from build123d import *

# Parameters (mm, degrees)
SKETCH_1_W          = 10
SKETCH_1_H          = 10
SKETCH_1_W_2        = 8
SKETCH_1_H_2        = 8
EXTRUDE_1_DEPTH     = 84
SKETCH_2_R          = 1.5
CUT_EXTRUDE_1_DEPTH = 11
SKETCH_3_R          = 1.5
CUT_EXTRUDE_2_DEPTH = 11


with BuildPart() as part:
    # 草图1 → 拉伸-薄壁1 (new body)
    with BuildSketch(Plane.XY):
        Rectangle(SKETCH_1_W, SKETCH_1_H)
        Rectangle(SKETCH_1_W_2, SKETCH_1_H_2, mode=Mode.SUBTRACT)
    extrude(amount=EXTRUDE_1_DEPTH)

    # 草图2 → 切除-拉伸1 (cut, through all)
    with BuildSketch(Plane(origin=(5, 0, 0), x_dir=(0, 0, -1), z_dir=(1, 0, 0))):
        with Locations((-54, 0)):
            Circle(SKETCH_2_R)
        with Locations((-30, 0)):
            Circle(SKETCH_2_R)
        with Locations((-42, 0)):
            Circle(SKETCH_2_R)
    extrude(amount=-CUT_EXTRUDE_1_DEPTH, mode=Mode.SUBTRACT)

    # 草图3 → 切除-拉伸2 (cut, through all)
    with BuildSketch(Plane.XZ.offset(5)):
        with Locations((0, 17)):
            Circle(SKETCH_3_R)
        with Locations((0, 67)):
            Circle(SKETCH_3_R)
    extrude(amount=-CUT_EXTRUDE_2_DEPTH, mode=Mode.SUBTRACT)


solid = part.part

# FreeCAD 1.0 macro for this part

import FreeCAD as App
import Part
import Sketcher

V = App.Vector
Q = App.Units.Quantity


def add_polygon(sketch, points):
    """Adds a closed chain of lines whose ends are joined by coincident constraints."""
    first, n = sketch.GeometryCount, len(points)
    for a, b in zip(points, points[1:] + points[:1]):
        sketch.addGeometry(Part.LineSegment(App.Vector(*a, 0), App.Vector(*b, 0)), False)
    for i in range(n):
        sketch.addConstraint(Sketcher.Constraint("Coincident", first + i, 2, first + (i + 1) % n, 1))

doc = App.newDocument("Part")
params = doc.addObject("Spreadsheet::Sheet", "Params")
for row, (alias, value) in enumerate([
    ("sketch1_width", "10 mm"),
    ("sketch1_width2", "8 mm"),
    ("pad1_length", "84 mm"),
    ("sketch2_diameter", "3 mm"),
    ("sketch3_diameter", "3 mm"),
], start=1):
    params.set(f"A{row}", alias)
    params.set(f"B{row}", "=" + value)
    params.setAlias(f"B{row}", alias)

body = doc.addObject("PartDesign::Body", "Body")

# Sketch on XY plane
sketch1 = body.newObject("Sketcher::SketchObject", "Sketch")
sketch1.AttachmentSupport = (doc.getObject("XY_Plane"), [""])
sketch1.MapMode = "FlatFace"
add_polygon(sketch1, [(-5, 5), (-5, -5), (5, -5), (5, 5)])  # lines 0-3
add_polygon(sketch1, [(4, -4), (-4, -4), (-4, 4), (4, 4)])  # lines 4-7
sketch1.addConstraint(Sketcher.Constraint("Vertical", 0))
sketch1.addConstraint(Sketcher.Constraint("Horizontal", 1))
sketch1.addConstraint(Sketcher.Constraint("Vertical", 2))
sketch1.addConstraint(Sketcher.Constraint("Horizontal", 3))
sketch1.addConstraint(Sketcher.Constraint("Horizontal", 4))
sketch1.addConstraint(Sketcher.Constraint("Vertical", 5))
sketch1.addConstraint(Sketcher.Constraint("Horizontal", 6))
sketch1.addConstraint(Sketcher.Constraint("Vertical", 7))
sketch1.addConstraint(Sketcher.Constraint("Symmetric", 0, 2, 2, 2, -1, 1))
sketch1.addConstraint(Sketcher.Constraint("Symmetric", 4, 2, 6, 2, -1, 1))
sketch1.addConstraint(Sketcher.Constraint("Equal", 3, 0))
sketch1.addConstraint(Sketcher.Constraint("Equal", 6, 5))
sketch1.addConstraint(Sketcher.Constraint("DistanceX", 1, 1, 1, 2, Q("10 mm")))
sketch1.addConstraint(Sketcher.Constraint("DistanceX", 4, 2, 4, 1, Q("8 mm")))
sketch1.setExpression("Constraints[20]", "Params.sketch1_width")
sketch1.setExpression("Constraints[21]", "Params.sketch1_width2")
pad1 = body.newObject("PartDesign::Pad", "Pad")
pad1.Profile = sketch1
pad1.setExpression("Length", "Params.pad1_length")

# Sketch on YZ plane
sketch2 = body.newObject("Sketcher::SketchObject", "Sketch001")
sketch2.AttachmentSupport = (doc.getObject("YZ_Plane"), [""])
sketch2.MapMode = "FlatFace"
sketch2.AttachmentOffset = App.Placement(V(0, 0, 5), App.Rotation())
sketch2.addGeometry(Part.Circle(V(0, 54, 0), V(0, 0, 1), 1.5), False)
sketch2.addGeometry(Part.Circle(V(0, 30, 0), V(0, 0, 1), 1.5), False)
sketch2.addGeometry(Part.Circle(V(0, 42, 0), V(0, 0, 1), 1.5), False)
sketch2.addConstraint(Sketcher.Constraint("Equal", 0, 1))
sketch2.addConstraint(Sketcher.Constraint("Equal", 1, 2))
sketch2.addConstraint(Sketcher.Constraint("PointOnObject", 0, 3, -2))
sketch2.addConstraint(Sketcher.Constraint("PointOnObject", 1, 3, -2))
sketch2.addConstraint(Sketcher.Constraint("PointOnObject", 2, 3, -2))
sketch2.addConstraint(Sketcher.Constraint("Diameter", 0, Q("3 mm")))
sketch2.addConstraint(Sketcher.Constraint("DistanceY", -1, 1, 0, 3, Q("54 mm")))
sketch2.addConstraint(Sketcher.Constraint("DistanceY", -1, 1, 1, 3, Q("30 mm")))
sketch2.addConstraint(Sketcher.Constraint("DistanceY", -1, 1, 2, 3, Q("42 mm")))
sketch2.setExpression("Constraints[5]", "Params.sketch2_diameter")
pocket1 = body.newObject("PartDesign::Pocket", "Pocket")
pocket1.Profile = sketch2
pocket1.Type = "ThroughAll"

# Sketch on XZ plane
sketch3 = body.newObject("Sketcher::SketchObject", "Sketch002")
sketch3.AttachmentSupport = (doc.getObject("XZ_Plane"), [""])
sketch3.MapMode = "FlatFace"
sketch3.AttachmentOffset = App.Placement(V(0, 0, 5), App.Rotation())
sketch3.addGeometry(Part.Circle(V(0, 17, 0), V(0, 0, 1), 1.5), False)
sketch3.addGeometry(Part.Circle(V(0, 67, 0), V(0, 0, 1), 1.5), False)
sketch3.addConstraint(Sketcher.Constraint("Equal", 0, 1))
sketch3.addConstraint(Sketcher.Constraint("PointOnObject", 0, 3, -2))
sketch3.addConstraint(Sketcher.Constraint("PointOnObject", 1, 3, -2))
sketch3.addConstraint(Sketcher.Constraint("Diameter", 0, Q("3 mm")))
sketch3.addConstraint(Sketcher.Constraint("DistanceY", -1, 1, 0, 3, Q("17 mm")))
sketch3.addConstraint(Sketcher.Constraint("DistanceY", -1, 1, 1, 3, Q("67 mm")))
sketch3.setExpression("Constraints[3]", "Params.sketch3_diameter")
pocket2 = body.newObject("PartDesign::Pocket", "Pocket001")
pocket2.Profile = sketch3
pocket2.Type = "ThroughAll"

doc.recompute()
